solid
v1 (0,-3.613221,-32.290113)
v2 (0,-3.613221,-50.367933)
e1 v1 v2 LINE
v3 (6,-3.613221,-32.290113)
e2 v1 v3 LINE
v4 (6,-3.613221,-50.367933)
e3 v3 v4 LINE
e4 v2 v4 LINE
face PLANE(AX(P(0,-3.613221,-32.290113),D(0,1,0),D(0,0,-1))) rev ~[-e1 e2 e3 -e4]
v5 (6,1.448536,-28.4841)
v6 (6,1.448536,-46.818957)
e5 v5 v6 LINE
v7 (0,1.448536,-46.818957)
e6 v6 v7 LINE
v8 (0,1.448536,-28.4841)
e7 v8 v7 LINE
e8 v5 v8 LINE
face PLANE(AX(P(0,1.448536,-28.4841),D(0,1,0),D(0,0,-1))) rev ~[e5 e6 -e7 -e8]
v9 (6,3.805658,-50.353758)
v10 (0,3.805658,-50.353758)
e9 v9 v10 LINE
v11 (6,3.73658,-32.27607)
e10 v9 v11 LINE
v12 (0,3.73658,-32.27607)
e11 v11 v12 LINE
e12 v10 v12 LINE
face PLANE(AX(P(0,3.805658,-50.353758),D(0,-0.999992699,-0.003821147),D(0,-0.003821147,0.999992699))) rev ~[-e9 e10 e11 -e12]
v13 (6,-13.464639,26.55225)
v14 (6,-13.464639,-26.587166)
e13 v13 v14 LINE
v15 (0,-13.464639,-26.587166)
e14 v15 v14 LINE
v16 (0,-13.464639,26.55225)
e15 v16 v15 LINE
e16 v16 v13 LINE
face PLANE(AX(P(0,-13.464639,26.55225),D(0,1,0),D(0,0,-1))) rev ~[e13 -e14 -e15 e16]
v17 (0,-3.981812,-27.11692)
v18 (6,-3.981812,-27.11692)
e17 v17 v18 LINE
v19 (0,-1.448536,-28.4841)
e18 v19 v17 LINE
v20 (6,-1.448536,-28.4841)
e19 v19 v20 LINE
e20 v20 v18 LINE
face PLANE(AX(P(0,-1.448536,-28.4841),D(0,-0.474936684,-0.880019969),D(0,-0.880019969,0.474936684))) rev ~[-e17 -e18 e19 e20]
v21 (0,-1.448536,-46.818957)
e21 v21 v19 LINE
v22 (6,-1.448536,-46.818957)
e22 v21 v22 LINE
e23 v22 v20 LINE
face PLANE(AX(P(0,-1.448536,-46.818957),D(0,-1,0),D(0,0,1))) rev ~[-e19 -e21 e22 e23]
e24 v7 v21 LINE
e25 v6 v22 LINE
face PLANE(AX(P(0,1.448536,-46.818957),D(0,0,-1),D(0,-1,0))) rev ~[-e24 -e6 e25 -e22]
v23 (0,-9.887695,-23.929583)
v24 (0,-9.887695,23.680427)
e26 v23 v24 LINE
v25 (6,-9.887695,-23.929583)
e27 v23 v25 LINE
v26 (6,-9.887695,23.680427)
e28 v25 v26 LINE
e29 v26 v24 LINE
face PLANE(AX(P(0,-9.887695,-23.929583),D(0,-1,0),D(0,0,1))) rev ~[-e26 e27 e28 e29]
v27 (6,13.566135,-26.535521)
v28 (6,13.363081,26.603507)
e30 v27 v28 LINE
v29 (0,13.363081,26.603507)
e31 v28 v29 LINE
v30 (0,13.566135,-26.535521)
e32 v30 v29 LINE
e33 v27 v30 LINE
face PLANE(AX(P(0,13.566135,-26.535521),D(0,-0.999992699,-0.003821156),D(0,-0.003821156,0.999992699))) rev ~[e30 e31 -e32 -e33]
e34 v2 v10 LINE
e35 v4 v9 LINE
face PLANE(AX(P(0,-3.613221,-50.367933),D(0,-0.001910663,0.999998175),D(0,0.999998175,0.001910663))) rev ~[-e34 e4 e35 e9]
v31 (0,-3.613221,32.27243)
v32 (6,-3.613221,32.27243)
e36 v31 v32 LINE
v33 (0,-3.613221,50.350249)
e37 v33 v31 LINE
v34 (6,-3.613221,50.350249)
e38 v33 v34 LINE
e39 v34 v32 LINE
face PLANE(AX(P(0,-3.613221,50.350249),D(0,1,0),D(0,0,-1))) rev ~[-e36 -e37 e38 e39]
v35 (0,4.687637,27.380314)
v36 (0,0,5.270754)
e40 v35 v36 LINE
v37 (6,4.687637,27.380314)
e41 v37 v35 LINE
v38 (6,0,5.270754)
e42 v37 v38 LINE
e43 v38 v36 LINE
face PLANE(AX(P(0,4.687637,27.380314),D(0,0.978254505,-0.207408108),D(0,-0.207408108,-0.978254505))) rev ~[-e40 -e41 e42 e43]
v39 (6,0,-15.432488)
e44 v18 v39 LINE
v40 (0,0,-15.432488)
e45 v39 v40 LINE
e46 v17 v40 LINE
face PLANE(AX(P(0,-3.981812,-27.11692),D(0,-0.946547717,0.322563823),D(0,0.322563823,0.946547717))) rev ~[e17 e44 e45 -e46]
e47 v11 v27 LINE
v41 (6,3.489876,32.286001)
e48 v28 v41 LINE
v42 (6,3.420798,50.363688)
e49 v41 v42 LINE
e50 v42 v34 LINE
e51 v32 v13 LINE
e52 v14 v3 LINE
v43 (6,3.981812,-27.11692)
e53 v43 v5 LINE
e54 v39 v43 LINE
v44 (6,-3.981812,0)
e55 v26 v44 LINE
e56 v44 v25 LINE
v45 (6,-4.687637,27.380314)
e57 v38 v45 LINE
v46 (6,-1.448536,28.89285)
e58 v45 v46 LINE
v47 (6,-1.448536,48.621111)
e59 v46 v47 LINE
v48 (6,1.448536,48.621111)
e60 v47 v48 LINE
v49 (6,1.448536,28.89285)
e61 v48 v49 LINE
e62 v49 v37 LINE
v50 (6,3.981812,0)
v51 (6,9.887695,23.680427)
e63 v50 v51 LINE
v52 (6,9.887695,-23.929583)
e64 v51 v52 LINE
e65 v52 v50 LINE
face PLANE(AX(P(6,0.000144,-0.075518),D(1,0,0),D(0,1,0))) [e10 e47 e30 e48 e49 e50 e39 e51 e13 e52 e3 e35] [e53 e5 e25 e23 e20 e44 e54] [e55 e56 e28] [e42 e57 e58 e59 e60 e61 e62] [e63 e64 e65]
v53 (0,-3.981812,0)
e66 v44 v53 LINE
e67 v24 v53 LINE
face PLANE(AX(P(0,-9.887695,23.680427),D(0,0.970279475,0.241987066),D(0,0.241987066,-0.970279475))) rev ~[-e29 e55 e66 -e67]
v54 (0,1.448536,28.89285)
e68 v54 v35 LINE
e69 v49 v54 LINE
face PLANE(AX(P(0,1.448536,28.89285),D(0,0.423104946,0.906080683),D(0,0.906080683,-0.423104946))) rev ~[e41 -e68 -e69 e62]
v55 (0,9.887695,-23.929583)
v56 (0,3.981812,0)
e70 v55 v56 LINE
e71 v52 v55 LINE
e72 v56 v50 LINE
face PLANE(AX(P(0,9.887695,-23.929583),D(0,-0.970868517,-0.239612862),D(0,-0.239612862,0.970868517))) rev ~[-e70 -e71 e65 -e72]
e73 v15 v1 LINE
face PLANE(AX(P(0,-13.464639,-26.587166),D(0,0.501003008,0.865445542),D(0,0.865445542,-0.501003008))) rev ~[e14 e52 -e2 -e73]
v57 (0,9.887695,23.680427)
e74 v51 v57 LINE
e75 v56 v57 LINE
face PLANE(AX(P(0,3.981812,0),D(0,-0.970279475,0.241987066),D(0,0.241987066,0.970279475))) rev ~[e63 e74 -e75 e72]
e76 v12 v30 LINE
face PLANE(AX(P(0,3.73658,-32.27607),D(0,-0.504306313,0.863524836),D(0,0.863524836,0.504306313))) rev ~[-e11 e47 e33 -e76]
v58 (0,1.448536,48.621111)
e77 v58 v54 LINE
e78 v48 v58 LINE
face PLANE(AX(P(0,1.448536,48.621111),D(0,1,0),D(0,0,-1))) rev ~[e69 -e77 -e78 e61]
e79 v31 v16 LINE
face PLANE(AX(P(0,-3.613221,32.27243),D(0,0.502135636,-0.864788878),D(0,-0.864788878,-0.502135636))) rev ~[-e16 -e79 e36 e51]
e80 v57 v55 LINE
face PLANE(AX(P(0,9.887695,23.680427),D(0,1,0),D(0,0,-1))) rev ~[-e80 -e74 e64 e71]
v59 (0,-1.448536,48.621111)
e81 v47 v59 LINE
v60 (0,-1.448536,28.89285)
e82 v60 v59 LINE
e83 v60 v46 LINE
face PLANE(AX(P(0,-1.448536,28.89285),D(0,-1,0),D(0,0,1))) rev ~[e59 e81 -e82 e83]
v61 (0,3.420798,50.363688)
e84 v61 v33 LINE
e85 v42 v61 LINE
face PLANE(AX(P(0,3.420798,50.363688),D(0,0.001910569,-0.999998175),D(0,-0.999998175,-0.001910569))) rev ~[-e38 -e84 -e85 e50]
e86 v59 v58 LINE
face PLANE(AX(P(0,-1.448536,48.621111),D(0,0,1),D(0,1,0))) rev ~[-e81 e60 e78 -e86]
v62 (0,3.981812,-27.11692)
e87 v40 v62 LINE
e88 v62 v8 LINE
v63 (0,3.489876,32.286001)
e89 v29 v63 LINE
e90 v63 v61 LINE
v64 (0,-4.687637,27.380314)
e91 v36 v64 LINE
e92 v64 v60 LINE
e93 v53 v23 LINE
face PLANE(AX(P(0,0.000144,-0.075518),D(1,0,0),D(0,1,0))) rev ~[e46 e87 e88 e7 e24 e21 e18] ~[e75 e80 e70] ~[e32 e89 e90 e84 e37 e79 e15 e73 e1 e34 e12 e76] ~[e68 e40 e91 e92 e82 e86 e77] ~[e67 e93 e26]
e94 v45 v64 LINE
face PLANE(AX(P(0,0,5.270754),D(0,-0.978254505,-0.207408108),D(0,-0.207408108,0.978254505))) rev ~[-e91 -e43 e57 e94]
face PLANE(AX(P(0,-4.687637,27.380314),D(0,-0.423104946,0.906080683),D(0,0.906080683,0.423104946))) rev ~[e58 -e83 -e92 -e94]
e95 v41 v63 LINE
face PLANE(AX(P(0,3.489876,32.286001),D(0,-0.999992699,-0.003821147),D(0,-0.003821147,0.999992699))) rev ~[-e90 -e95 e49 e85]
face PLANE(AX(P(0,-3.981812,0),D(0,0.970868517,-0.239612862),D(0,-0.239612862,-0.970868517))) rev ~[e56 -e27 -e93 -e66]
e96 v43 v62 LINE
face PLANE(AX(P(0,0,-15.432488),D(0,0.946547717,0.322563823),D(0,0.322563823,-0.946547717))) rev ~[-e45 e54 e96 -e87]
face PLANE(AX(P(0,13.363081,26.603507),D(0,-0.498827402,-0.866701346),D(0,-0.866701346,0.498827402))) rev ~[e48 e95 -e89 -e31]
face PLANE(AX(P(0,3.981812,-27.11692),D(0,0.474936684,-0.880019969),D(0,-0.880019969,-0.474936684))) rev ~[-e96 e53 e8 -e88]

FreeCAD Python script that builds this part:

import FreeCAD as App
import Part
import Sketcher

V = App.Vector
Q = App.Units.Quantity


def add_polygon(sketch, points):
    """Adds a closed chain of lines whose ends are joined by coincident constraints."""
    first, n = sketch.GeometryCount, len(points)
    for a, b in zip(points, points[1:] + points[:1]):
        sketch.addGeometry(Part.LineSegment(App.Vector(*a, 0), App.Vector(*b, 0)), False)
    for i in range(n):
        sketch.addConstraint(Sketcher.Constraint("Coincident", first + i, 2, first + (i + 1) % n, 1))

doc = App.newDocument("Part")
body = doc.addObject("PartDesign::Body", "Body")

# Sketch on YZ plane
sketch1 = body.newObject("Sketcher::SketchObject", "Sketch")
sketch1.AttachmentSupport = (doc.getObject("YZ_Plane"), [""])
sketch1.MapMode = "FlatFace"
add_polygon(sketch1, [(3.4, 50.4), (-3.6, 50.4), (-3.6, 32.3), (-13.5, 26.6), (-13.5, -26.6), (-3.6, -32.3), (-3.6, -50.4), (3.8, -50.4), (3.7, -32.3), (13.6, -26.5), (13.4, 26.6), (3.5, 32.3)])  # lines 0-11
add_polygon(sketch1, [(-4, 0), (-9.9, -23.9), (-9.9, 23.7)])  # lines 12-14
add_polygon(sketch1, [(1.4, -46.8), (-1.4, -46.8), (-1.4, -28.5), (-4, -27.1), (0, -15.4), (4, -27.1), (1.4, -28.5)])  # lines 15-21
add_polygon(sketch1, [(9.9, -23.9), (4, 0), (9.9, 23.7)])  # lines 22-24
add_polygon(sketch1, [(-4.7, 27.4), (-1.4, 28.9), (-1.4, 48.6), (1.4, 48.6), (1.4, 28.9), (4.7, 27.4), (0, 5.3)])  # lines 25-31
sketch1.addConstraint(Sketcher.Constraint("Vertical", 1))
sketch1.addConstraint(Sketcher.Constraint("Vertical", 3))
sketch1.addConstraint(Sketcher.Constraint("Vertical", 5))
sketch1.addConstraint(Sketcher.Constraint("Vertical", 13))
sketch1.addConstraint(Sketcher.Constraint("Horizontal", 15))
sketch1.addConstraint(Sketcher.Constraint("Vertical", 16))
sketch1.addConstraint(Sketcher.Constraint("Vertical", 21))
sketch1.addConstraint(Sketcher.Constraint("Vertical", 24))
sketch1.addConstraint(Sketcher.Constraint("Vertical", 26))
sketch1.addConstraint(Sketcher.Constraint("Horizontal", 27))
sketch1.addConstraint(Sketcher.Constraint("Vertical", 28))
sketch1.addConstraint(Sketcher.Constraint("Symmetric", 14, 2, 22, 2, -1, 1))
sketch1.addConstraint(Sketcher.Constraint("Symmetric", 17, 2, 19, 2, -2))
sketch1.addConstraint(Sketcher.Constraint("Symmetric", 16, 2, 20, 2, -2))
sketch1.addConstraint(Sketcher.Constraint("Symmetric", 13, 2, 23, 2, -2))
sketch1.addConstraint(Sketcher.Constraint("Symmetric", 25, 2, 28, 2, -2))
sketch1.addConstraint(Sketcher.Constraint("Symmetric", 29, 2, 31, 2, -2))
sketch1.addConstraint(Sketcher.Constraint("PointOnObject", 14, 2, -1))
sketch1.addConstraint(Sketcher.Constraint("PointOnObject", 18, 2, -2))
sketch1.addConstraint(Sketcher.Constraint("PointOnObject", 30, 2, -2))
sketch1.addConstraint(Sketcher.Constraint("Parallel", 0, 6))
sketch1.addConstraint(Sketcher.Constraint("Parallel", 7, 9))
sketch1.addConstraint(Sketcher.Constraint("Parallel", 9, 11))
sketch1.addConstraint(Sketcher.Constraint("Horizontal", 12, 2, 24, 2))
sketch1.addConstraint(Sketcher.Constraint("Vertical", 1, 2, 4, 2))
sketch1.addConstraint(Sketcher.Constraint("Vertical", 14, 2, 17, 2))
sketch1.addConstraint(Sketcher.Constraint("Vertical", 16, 2, 25, 2))
sketch1.addConstraint(Sketcher.Constraint("Equal", 1, 5))
sketch1.addConstraint(Sketcher.Constraint("Equal", 4, 8))
sketch1.addConstraint(Sketcher.Constraint("Equal", 2, 10))
sketch1.addConstraint(Sketcher.Constraint("Equal", 7, 11))
sketch1.addConstraint(Sketcher.Constraint("DistanceY", -1, 1, 10, 2, Q("32.286001 mm")))
sketch1.addConstraint(Sketcher.Constraint("DistanceY", 2, 2, 0, 2, Q("23.797999 mm")))
sketch1.addConstraint(Sketcher.Constraint("DistanceY", 1, 2, 1, 1, Q("18.077819 mm")))
sketch1.addConstraint(Sketcher.Constraint("DistanceY", 13, 1, 13, 2, Q("47.61001 mm")))
sketch1.addConstraint(Sketcher.Constraint("DistanceY", 26, 1, 26, 2, Q("19.728261 mm")))
sketch1.addConstraint(Sketcher.Constraint("DistanceX", -1, 1, 11, 2, Q("3.420798 mm")))
sketch1.addConstraint(Sketcher.Constraint("DistanceY", 16, 2, -1, 1, Q("28.4841 mm")))
sketch1.addConstraint(Sketcher.Constraint("DistanceX", 4, 2, 7, 2, Q("7.349801 mm")))
sketch1.addConstraint(Sketcher.Constraint("DistanceY", 6, 2, 15, 2, Q("3.534801 mm")))
sketch1.addConstraint(Sketcher.Constraint("DistanceY", 19, 2, 8, 2, Q("0.581399 mm")))
sketch1.addConstraint(Sketcher.Constraint("DistanceY", 2, 2, 25, 2, Q("2.3406 mm")))
sketch1.addConstraint(Sketcher.Constraint("DistanceX", 28, 2, 29, 2, Q("3.239101 mm")))
sketch1.addConstraint(Sketcher.Constraint("Distance", 0, Q("7.034032 mm")))
sketch1.addConstraint(Sketcher.Constraint("Distance", 4, Q("11.383059 mm")))
sketch1.addConstraint(Sketcher.Constraint("Distance", 7, Q("18.07782 mm")))
sketch1.addConstraint(Sketcher.Constraint("Distance", 14, Q("24.40578 mm")))
sketch1.addConstraint(Sketcher.Constraint("Distance", 18, Q("12.344261 mm")))
sketch1.addConstraint(Sketcher.Constraint("Distance", 25, Q("3.574848 mm")))
sketch1.addConstraint(Sketcher.Constraint("Distance", 30, Q("22.601031 mm")))
sketch1.addConstraint(Sketcher.Constraint("DistanceX", 15, 2, 15, 1, Q("2.897072 mm")))
sketch1.addConstraint(Sketcher.Constraint("DistanceY", 3, 2, 3, 1, Q("53.139416 mm")))
sketch1.addConstraint(Sketcher.Constraint("DistanceY", 16, 1, 16, 2, Q("18.334857 mm")))
sketch1.addConstraint(Sketcher.Constraint("DistanceY", -1, 1, 0, 2, Q("50.350249 mm")))
sketch1.addConstraint(Sketcher.Constraint("DistanceX", -1, 1, 6, 2, Q("3.805658 mm")))
sketch1.addConstraint(Sketcher.Constraint("DistanceY", 8, 2, -1, 1, Q("26.535521 mm")))
sketch1.addConstraint(Sketcher.Constraint("DistanceY", 4, 2, 12, 2, Q("8.36053 mm")))
sketch1.addConstraint(Sketcher.Constraint("DistanceX", 12, 2, 8, 2, Q("23.45383 mm")))
pad1 = body.newObject("PartDesign::Pad", "Pad")
pad1.Profile = sketch1
pad1.Length = 4

# Sketch on YZ plane
sketch2 = body.newObject("Sketcher::SketchObject", "Sketch001")
sketch2.AttachmentSupport = (doc.getObject("YZ_Plane"), [""])
sketch2.MapMode = "FlatFace"
add_polygon(sketch2, [(3.4, 50.4), (-3.6, 50.4), (-3.6, 32.3), (-13.5, 26.6), (-13.5, -26.6), (-3.6, -32.3), (-3.6, -50.4), (3.8, -50.4), (3.7, -32.3), (13.6, -26.5), (13.4, 26.6), (3.5, 32.3)])  # lines 0-11
add_polygon(sketch2, [(-4, 0), (-9.9, -23.9), (-9.9, 23.7)])  # lines 12-14
add_polygon(sketch2, [(1.4, -46.8), (-1.4, -46.8), (-1.4, -28.5), (-4, -27.1), (0, -15.4), (4, -27.1), (1.4, -28.5)])  # lines 15-21
add_polygon(sketch2, [(9.9, -23.9), (4, 0), (9.9, 23.7)])  # lines 22-24
add_polygon(sketch2, [(-4.7, 27.4), (-1.4, 28.9), (-1.4, 48.6), (1.4, 48.6), (1.4, 28.9), (4.7, 27.4), (0, 5.3)])  # lines 25-31
sketch2.addConstraint(Sketcher.Constraint("Vertical", 1))
sketch2.addConstraint(Sketcher.Constraint("Vertical", 3))
sketch2.addConstraint(Sketcher.Constraint("Vertical", 5))
sketch2.addConstraint(Sketcher.Constraint("Vertical", 13))
sketch2.addConstraint(Sketcher.Constraint("Horizontal", 15))
sketch2.addConstraint(Sketcher.Constraint("Vertical", 16))
sketch2.addConstraint(Sketcher.Constraint("Vertical", 21))
sketch2.addConstraint(Sketcher.Constraint("Vertical", 24))
sketch2.addConstraint(Sketcher.Constraint("Vertical", 26))
sketch2.addConstraint(Sketcher.Constraint("Horizontal", 27))
sketch2.addConstraint(Sketcher.Constraint("Vertical", 28))
sketch2.addConstraint(Sketcher.Constraint("Symmetric", 14, 2, 22, 2, -1, 1))
sketch2.addConstraint(Sketcher.Constraint("Symmetric", 17, 2, 19, 2, -2))
sketch2.addConstraint(Sketcher.Constraint("Symmetric", 16, 2, 20, 2, -2))
sketch2.addConstraint(Sketcher.Constraint("Symmetric", 13, 2, 23, 2, -2))
sketch2.addConstraint(Sketcher.Constraint("Symmetric", 25, 2, 28, 2, -2))
sketch2.addConstraint(Sketcher.Constraint("Symmetric", 29, 2, 31, 2, -2))
sketch2.addConstraint(Sketcher.Constraint("PointOnObject", 14, 2, -1))
sketch2.addConstraint(Sketcher.Constraint("PointOnObject", 18, 2, -2))
sketch2.addConstraint(Sketcher.Constraint("PointOnObject", 30, 2, -2))
sketch2.addConstraint(Sketcher.Constraint("Parallel", 0, 6))
sketch2.addConstraint(Sketcher.Constraint("Parallel", 7, 9))
sketch2.addConstraint(Sketcher.Constraint("Parallel", 9, 11))
sketch2.addConstraint(Sketcher.Constraint("Horizontal", 12, 2, 24, 2))
sketch2.addConstraint(Sketcher.Constraint("Vertical", 1, 2, 4, 2))
sketch2.addConstraint(Sketcher.Constraint("Vertical", 14, 2, 17, 2))
sketch2.addConstraint(Sketcher.Constraint("Vertical", 16, 2, 25, 2))
sketch2.addConstraint(Sketcher.Constraint("Equal", 1, 5))
sketch2.addConstraint(Sketcher.Constraint("Equal", 4, 8))
sketch2.addConstraint(Sketcher.Constraint("Equal", 2, 10))
sketch2.addConstraint(Sketcher.Constraint("Equal", 7, 11))
sketch2.addConstraint(Sketcher.Constraint("DistanceY", -1, 1, 10, 2, Q("32.286001 mm")))
sketch2.addConstraint(Sketcher.Constraint("DistanceY", 2, 2, 0, 2, Q("23.797999 mm")))
sketch2.addConstraint(Sketcher.Constraint("DistanceY", 1, 2, 1, 1, Q("18.077819 mm")))
sketch2.addConstraint(Sketcher.Constraint("DistanceY", 13, 1, 13, 2, Q("47.61001 mm")))
sketch2.addConstraint(Sketcher.Constraint("DistanceY", 26, 1, 26, 2, Q("19.728261 mm")))
sketch2.addConstraint(Sketcher.Constraint("DistanceX", -1, 1, 11, 2, Q("3.420798 mm")))
sketch2.addConstraint(Sketcher.Constraint("DistanceY", 16, 2, -1, 1, Q("28.4841 mm")))
sketch2.addConstraint(Sketcher.Constraint("DistanceX", 4, 2, 7, 2, Q("7.349801 mm")))
sketch2.addConstraint(Sketcher.Constraint("DistanceY", 6, 2, 15, 2, Q("3.534801 mm")))
sketch2.addConstraint(Sketcher.Constraint("DistanceY", 19, 2, 8, 2, Q("0.581399 mm")))
sketch2.addConstraint(Sketcher.Constraint("DistanceY", 2, 2, 25, 2, Q("2.3406 mm")))
sketch2.addConstraint(Sketcher.Constraint("DistanceX", 28, 2, 29, 2, Q("3.239101 mm")))
sketch2.addConstraint(Sketcher.Constraint("Distance", 0, Q("7.034032 mm")))
sketch2.addConstraint(Sketcher.Constraint("Distance", 4, Q("11.383059 mm")))
sketch2.addConstraint(Sketcher.Constraint("Distance", 7, Q("18.07782 mm")))
sketch2.addConstraint(Sketcher.Constraint("Distance", 14, Q("24.40578 mm")))
sketch2.addConstraint(Sketcher.Constraint("Distance", 18, Q("12.344261 mm")))
sketch2.addConstraint(Sketcher.Constraint("Distance", 25, Q("3.574848 mm")))
sketch2.addConstraint(Sketcher.Constraint("Distance", 30, Q("22.601031 mm")))
sketch2.addConstraint(Sketcher.Constraint("DistanceX", 15, 2, 15, 1, Q("2.897072 mm")))
sketch2.addConstraint(Sketcher.Constraint("DistanceY", 3, 2, 3, 1, Q("53.139416 mm")))
sketch2.addConstraint(Sketcher.Constraint("DistanceY", 16, 1, 16, 2, Q("18.334857 mm")))
sketch2.addConstraint(Sketcher.Constraint("DistanceY", -1, 1, 0, 2, Q("50.350249 mm")))
sketch2.addConstraint(Sketcher.Constraint("DistanceX", -1, 1, 6, 2, Q("3.805658 mm")))
sketch2.addConstraint(Sketcher.Constraint("DistanceY", 8, 2, -1, 1, Q("26.535521 mm")))
sketch2.addConstraint(Sketcher.Constraint("DistanceY", 4, 2, 12, 2, Q("8.36053 mm")))
sketch2.addConstraint(Sketcher.Constraint("DistanceX", 12, 2, 8, 2, Q("23.45383 mm")))
pad2 = body.newObject("PartDesign::Pad", "Pad001")
pad2.Profile = sketch2
pad2.Length = 6

doc.recompute()
